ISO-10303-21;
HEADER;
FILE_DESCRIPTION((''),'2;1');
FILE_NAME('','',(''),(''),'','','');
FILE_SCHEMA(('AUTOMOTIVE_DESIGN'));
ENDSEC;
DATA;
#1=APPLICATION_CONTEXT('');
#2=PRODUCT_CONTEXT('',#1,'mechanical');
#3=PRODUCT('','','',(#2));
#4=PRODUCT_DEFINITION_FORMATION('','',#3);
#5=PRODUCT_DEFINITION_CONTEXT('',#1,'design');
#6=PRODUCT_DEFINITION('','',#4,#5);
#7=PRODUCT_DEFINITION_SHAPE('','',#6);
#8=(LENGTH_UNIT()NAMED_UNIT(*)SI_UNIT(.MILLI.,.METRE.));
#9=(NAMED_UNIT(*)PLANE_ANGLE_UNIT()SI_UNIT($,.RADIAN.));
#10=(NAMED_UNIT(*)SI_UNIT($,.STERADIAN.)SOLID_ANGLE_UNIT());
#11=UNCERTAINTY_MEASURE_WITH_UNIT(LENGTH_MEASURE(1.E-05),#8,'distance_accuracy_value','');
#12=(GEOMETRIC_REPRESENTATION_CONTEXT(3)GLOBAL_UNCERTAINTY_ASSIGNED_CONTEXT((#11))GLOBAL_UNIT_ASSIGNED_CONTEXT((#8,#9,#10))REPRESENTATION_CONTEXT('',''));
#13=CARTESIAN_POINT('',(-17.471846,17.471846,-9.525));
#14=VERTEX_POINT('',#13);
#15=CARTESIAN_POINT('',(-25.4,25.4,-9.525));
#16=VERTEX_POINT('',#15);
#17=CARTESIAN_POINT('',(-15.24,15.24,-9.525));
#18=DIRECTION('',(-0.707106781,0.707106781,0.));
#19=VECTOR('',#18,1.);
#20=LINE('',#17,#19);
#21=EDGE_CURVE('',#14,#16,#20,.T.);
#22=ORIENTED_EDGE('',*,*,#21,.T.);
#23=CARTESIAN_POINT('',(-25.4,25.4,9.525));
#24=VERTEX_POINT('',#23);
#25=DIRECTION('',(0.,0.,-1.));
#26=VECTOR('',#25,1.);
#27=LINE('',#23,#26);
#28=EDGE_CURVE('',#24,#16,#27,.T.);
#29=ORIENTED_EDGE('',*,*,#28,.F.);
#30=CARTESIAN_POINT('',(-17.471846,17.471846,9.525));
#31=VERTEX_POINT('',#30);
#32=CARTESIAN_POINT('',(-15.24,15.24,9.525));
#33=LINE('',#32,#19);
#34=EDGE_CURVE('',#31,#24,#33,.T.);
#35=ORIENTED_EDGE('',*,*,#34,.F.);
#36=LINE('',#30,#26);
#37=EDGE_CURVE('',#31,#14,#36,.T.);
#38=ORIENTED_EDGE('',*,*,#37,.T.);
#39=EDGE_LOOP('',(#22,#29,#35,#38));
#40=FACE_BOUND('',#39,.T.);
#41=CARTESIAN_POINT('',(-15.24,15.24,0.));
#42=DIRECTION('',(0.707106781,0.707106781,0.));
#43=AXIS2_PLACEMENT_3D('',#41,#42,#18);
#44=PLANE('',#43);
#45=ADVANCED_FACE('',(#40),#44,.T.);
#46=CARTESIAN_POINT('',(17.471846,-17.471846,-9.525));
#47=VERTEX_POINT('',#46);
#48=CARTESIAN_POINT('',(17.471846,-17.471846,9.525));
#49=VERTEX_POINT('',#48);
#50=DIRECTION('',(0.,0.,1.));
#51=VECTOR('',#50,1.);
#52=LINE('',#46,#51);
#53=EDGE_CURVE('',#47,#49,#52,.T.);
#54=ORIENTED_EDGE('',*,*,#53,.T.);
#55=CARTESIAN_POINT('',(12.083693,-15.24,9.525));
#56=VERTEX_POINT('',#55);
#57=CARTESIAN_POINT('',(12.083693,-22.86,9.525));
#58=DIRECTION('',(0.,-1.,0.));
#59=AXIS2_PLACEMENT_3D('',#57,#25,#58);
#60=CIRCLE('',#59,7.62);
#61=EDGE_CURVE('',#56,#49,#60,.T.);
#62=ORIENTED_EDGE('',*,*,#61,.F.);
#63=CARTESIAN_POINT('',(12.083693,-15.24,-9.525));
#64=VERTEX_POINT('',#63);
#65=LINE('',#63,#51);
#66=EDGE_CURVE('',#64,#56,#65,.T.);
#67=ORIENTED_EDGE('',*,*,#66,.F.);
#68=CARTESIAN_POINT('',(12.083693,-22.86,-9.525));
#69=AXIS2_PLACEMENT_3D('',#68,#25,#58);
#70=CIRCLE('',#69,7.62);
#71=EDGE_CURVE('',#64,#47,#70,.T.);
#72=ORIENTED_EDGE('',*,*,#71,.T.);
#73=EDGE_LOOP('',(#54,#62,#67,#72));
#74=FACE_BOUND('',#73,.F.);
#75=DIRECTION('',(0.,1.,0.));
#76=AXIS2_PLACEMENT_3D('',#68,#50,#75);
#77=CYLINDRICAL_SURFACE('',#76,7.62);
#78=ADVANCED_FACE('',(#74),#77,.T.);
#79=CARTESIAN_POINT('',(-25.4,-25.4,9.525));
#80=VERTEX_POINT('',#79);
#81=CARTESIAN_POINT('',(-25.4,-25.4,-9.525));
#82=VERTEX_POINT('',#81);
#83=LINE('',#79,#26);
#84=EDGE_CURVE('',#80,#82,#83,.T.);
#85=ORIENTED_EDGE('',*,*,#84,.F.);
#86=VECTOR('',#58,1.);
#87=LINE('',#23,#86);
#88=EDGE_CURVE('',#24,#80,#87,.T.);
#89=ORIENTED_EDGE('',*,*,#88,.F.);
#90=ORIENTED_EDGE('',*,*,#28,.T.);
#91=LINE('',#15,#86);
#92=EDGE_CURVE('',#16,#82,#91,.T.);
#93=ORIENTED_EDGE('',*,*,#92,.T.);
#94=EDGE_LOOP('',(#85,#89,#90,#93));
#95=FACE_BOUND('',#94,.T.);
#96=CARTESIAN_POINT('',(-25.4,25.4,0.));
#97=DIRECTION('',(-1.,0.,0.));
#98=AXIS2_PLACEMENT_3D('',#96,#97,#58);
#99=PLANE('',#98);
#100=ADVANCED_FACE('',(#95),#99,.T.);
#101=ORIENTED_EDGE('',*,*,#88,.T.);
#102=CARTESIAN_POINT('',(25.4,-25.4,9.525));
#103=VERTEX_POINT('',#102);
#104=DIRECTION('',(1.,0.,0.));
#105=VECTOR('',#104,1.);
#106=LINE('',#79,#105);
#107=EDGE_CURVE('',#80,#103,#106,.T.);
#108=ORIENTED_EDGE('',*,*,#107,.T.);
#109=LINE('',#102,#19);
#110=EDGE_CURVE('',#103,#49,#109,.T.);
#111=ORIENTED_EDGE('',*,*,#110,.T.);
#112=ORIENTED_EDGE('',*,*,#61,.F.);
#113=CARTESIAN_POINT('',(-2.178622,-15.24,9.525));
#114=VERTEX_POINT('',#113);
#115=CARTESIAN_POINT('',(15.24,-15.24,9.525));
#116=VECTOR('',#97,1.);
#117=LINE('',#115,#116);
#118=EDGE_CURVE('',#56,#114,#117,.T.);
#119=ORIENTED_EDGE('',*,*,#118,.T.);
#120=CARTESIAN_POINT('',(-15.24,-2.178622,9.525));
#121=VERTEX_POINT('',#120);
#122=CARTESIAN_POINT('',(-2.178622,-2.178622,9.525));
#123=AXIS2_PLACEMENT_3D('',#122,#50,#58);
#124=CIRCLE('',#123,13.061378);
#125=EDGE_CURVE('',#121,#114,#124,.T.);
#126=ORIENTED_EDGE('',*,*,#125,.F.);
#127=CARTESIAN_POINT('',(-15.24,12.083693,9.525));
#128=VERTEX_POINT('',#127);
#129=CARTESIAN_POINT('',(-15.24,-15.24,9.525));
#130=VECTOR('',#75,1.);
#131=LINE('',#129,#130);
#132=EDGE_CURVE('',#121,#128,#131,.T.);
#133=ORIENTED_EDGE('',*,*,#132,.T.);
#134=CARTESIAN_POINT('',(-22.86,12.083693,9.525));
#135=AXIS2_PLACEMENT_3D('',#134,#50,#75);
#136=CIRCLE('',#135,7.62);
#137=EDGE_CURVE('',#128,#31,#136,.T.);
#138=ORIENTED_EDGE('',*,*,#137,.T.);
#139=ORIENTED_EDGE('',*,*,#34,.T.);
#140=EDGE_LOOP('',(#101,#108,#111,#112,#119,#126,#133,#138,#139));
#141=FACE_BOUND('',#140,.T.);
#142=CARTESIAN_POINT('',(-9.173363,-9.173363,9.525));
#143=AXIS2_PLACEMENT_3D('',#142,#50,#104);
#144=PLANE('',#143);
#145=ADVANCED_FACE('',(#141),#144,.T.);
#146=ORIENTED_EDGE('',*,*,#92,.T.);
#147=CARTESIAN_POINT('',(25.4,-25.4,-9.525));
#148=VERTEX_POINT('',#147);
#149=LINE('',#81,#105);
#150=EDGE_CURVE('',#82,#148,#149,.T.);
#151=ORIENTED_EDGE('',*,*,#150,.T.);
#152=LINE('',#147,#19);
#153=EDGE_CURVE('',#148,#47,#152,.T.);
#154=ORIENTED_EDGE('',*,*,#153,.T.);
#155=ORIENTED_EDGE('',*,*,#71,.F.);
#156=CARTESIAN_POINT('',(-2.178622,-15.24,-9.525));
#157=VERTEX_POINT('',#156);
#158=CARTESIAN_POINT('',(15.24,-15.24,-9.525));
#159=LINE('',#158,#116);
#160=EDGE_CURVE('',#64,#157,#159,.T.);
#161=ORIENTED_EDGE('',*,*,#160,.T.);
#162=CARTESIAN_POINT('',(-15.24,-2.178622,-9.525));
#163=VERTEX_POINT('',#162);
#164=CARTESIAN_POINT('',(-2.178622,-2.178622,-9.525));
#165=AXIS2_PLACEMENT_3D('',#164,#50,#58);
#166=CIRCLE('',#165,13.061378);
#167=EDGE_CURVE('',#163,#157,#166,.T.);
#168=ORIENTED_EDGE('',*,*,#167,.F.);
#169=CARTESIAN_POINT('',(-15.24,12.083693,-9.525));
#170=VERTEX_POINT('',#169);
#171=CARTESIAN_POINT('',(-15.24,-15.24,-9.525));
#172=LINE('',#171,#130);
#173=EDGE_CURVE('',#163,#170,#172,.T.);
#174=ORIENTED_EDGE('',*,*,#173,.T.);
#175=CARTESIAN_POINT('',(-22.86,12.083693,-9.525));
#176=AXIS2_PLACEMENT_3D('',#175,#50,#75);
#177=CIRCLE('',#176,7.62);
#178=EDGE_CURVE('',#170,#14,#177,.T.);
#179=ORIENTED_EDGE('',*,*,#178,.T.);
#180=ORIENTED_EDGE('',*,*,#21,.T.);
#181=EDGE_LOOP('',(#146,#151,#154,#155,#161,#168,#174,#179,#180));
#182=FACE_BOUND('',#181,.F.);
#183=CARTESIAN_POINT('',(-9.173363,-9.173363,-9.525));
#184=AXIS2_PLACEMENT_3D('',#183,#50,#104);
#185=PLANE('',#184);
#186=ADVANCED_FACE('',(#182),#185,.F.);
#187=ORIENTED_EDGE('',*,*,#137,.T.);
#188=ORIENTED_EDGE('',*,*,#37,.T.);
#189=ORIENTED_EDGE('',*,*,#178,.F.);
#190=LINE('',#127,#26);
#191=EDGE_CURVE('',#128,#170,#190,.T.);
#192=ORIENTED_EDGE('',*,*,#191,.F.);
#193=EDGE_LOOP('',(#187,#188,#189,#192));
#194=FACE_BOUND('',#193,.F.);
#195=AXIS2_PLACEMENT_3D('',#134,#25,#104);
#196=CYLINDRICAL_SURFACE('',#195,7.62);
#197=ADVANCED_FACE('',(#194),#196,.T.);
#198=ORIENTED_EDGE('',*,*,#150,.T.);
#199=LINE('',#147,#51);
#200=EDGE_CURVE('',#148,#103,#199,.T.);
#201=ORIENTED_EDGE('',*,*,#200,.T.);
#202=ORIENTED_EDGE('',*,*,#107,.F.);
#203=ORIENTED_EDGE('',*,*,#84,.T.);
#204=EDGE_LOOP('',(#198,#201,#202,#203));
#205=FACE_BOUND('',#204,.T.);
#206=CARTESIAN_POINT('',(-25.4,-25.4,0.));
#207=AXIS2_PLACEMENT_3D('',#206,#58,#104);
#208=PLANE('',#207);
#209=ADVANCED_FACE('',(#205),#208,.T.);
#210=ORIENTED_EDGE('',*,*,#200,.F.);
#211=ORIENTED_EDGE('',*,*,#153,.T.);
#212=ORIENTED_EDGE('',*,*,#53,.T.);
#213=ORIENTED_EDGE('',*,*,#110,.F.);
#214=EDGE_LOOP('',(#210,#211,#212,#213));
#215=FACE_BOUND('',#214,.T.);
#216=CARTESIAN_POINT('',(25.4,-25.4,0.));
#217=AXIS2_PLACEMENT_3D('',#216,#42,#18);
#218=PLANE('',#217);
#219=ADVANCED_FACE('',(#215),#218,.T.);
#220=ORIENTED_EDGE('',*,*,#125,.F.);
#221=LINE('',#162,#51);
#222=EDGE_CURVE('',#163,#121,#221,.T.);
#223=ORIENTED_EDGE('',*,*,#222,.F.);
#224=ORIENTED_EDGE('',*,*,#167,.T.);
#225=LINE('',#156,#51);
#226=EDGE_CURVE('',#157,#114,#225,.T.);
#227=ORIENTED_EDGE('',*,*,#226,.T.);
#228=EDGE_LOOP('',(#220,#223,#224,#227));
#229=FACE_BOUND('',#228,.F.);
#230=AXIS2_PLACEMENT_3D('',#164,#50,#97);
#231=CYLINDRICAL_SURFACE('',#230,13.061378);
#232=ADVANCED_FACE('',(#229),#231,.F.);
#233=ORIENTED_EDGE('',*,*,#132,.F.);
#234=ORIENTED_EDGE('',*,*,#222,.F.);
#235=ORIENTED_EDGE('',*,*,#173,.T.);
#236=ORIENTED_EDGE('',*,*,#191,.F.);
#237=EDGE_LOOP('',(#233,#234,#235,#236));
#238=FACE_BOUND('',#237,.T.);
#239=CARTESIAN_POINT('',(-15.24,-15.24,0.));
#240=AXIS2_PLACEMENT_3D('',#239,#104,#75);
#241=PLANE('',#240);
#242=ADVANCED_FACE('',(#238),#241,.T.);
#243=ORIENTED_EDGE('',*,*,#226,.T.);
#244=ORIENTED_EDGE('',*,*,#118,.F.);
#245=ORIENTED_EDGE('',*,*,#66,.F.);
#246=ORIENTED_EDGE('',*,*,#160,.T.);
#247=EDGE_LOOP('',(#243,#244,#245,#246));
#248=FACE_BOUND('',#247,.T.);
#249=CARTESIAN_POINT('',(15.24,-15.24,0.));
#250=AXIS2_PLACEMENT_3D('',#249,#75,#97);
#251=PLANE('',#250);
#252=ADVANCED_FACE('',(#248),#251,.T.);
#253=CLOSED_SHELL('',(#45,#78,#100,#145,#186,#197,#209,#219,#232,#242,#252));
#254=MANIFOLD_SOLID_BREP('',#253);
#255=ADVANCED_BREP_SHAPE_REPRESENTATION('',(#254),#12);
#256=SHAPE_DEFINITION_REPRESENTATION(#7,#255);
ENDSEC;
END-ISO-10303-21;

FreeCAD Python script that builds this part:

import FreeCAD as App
import Part
import Sketcher
from FreeCAD import Vector
Q = App.Units.Quantity


def edges_at(feature, points):
    """Names of the edges that pass closest to the given points."""
    edges = feature.Shape.Edges
    near = lambda p: min(range(len(edges)), key=lambda i: edges[i].distToShape(Part.Vertex(*p))[0])
    return sorted({f"Edge{near(p) + 1}" for p in points})


def add_polygon(sketch, points):
    """Adds a closed chain of lines whose ends are joined by coincident constraints."""
    first, n = sketch.GeometryCount, len(points)
    for a, b in zip(points, points[1:] + points[:1]):
        sketch.addGeometry(Part.LineSegment(App.Vector(*a, 0), App.Vector(*b, 0)), False)
    for i in range(n):
        sketch.addConstraint(Sketcher.Constraint("Coincident", first + i, 2, first + (i + 1) % n, 1))

doc = App.newDocument("Part")
body = doc.addObject("PartDesign::Body", "Body")

sketch1 = body.newObject("Sketcher::SketchObject", "Sketch")
sketch1.AttachmentSupport = (doc.getObject("XY_Plane"), [""])
sketch1.MapMode = "FlatFace"
add_polygon(sketch1, [(-25, -25), (25, -25), (15, -15), (-15, -15), (-15, 15), (-25, 25)])
sketch1.addConstraint(Sketcher.Constraint("Horizontal", 0))
sketch1.addConstraint(Sketcher.Constraint("Horizontal", 2))
sketch1.addConstraint(Sketcher.Constraint("Vertical", 3))
sketch1.addConstraint(Sketcher.Constraint("Vertical", 5))
sketch1.addConstraint(Sketcher.Constraint("Symmetric", 1, 2, 3, 2, -1, 1))
sketch1.addConstraint(Sketcher.Constraint("Symmetric", 0, 2, 4, 2, -1, 1))
sketch1.addConstraint(Sketcher.Constraint("Equal", 2, 3))
sketch1.addConstraint(Sketcher.Constraint("Equal", 0, 5))
sketch1.addConstraint(Sketcher.Constraint("DistanceX", 0, 1, 0, 2, Q("2 in")))
sketch1.addConstraint(Sketcher.Constraint("DistanceX", 2, 2, 2, 1, Q("1.2 in")))
pad1 = body.newObject("PartDesign::Pad", "Pad")
pad1.Profile = sketch1
pad1.Length = Q("0.75 in")
pad1.Midplane = True
doc.recompute()

fillet = body.newObject("PartDesign::Fillet", "Fillet")
fillet.Base = (pad1, edges_at(pad1, [(-15.24, -15.24, 0)]))
fillet.Radius = 13.061378
doc.recompute()

fillet2 = body.newObject("PartDesign::Fillet", "Fillet001")
fillet2.Base = (fillet, edges_at(fillet, [(-15.24, 15.24, 0), (15.24, -15.24, 0)]))
fillet2.Radius = Q("0.3 in")

doc.recompute()
